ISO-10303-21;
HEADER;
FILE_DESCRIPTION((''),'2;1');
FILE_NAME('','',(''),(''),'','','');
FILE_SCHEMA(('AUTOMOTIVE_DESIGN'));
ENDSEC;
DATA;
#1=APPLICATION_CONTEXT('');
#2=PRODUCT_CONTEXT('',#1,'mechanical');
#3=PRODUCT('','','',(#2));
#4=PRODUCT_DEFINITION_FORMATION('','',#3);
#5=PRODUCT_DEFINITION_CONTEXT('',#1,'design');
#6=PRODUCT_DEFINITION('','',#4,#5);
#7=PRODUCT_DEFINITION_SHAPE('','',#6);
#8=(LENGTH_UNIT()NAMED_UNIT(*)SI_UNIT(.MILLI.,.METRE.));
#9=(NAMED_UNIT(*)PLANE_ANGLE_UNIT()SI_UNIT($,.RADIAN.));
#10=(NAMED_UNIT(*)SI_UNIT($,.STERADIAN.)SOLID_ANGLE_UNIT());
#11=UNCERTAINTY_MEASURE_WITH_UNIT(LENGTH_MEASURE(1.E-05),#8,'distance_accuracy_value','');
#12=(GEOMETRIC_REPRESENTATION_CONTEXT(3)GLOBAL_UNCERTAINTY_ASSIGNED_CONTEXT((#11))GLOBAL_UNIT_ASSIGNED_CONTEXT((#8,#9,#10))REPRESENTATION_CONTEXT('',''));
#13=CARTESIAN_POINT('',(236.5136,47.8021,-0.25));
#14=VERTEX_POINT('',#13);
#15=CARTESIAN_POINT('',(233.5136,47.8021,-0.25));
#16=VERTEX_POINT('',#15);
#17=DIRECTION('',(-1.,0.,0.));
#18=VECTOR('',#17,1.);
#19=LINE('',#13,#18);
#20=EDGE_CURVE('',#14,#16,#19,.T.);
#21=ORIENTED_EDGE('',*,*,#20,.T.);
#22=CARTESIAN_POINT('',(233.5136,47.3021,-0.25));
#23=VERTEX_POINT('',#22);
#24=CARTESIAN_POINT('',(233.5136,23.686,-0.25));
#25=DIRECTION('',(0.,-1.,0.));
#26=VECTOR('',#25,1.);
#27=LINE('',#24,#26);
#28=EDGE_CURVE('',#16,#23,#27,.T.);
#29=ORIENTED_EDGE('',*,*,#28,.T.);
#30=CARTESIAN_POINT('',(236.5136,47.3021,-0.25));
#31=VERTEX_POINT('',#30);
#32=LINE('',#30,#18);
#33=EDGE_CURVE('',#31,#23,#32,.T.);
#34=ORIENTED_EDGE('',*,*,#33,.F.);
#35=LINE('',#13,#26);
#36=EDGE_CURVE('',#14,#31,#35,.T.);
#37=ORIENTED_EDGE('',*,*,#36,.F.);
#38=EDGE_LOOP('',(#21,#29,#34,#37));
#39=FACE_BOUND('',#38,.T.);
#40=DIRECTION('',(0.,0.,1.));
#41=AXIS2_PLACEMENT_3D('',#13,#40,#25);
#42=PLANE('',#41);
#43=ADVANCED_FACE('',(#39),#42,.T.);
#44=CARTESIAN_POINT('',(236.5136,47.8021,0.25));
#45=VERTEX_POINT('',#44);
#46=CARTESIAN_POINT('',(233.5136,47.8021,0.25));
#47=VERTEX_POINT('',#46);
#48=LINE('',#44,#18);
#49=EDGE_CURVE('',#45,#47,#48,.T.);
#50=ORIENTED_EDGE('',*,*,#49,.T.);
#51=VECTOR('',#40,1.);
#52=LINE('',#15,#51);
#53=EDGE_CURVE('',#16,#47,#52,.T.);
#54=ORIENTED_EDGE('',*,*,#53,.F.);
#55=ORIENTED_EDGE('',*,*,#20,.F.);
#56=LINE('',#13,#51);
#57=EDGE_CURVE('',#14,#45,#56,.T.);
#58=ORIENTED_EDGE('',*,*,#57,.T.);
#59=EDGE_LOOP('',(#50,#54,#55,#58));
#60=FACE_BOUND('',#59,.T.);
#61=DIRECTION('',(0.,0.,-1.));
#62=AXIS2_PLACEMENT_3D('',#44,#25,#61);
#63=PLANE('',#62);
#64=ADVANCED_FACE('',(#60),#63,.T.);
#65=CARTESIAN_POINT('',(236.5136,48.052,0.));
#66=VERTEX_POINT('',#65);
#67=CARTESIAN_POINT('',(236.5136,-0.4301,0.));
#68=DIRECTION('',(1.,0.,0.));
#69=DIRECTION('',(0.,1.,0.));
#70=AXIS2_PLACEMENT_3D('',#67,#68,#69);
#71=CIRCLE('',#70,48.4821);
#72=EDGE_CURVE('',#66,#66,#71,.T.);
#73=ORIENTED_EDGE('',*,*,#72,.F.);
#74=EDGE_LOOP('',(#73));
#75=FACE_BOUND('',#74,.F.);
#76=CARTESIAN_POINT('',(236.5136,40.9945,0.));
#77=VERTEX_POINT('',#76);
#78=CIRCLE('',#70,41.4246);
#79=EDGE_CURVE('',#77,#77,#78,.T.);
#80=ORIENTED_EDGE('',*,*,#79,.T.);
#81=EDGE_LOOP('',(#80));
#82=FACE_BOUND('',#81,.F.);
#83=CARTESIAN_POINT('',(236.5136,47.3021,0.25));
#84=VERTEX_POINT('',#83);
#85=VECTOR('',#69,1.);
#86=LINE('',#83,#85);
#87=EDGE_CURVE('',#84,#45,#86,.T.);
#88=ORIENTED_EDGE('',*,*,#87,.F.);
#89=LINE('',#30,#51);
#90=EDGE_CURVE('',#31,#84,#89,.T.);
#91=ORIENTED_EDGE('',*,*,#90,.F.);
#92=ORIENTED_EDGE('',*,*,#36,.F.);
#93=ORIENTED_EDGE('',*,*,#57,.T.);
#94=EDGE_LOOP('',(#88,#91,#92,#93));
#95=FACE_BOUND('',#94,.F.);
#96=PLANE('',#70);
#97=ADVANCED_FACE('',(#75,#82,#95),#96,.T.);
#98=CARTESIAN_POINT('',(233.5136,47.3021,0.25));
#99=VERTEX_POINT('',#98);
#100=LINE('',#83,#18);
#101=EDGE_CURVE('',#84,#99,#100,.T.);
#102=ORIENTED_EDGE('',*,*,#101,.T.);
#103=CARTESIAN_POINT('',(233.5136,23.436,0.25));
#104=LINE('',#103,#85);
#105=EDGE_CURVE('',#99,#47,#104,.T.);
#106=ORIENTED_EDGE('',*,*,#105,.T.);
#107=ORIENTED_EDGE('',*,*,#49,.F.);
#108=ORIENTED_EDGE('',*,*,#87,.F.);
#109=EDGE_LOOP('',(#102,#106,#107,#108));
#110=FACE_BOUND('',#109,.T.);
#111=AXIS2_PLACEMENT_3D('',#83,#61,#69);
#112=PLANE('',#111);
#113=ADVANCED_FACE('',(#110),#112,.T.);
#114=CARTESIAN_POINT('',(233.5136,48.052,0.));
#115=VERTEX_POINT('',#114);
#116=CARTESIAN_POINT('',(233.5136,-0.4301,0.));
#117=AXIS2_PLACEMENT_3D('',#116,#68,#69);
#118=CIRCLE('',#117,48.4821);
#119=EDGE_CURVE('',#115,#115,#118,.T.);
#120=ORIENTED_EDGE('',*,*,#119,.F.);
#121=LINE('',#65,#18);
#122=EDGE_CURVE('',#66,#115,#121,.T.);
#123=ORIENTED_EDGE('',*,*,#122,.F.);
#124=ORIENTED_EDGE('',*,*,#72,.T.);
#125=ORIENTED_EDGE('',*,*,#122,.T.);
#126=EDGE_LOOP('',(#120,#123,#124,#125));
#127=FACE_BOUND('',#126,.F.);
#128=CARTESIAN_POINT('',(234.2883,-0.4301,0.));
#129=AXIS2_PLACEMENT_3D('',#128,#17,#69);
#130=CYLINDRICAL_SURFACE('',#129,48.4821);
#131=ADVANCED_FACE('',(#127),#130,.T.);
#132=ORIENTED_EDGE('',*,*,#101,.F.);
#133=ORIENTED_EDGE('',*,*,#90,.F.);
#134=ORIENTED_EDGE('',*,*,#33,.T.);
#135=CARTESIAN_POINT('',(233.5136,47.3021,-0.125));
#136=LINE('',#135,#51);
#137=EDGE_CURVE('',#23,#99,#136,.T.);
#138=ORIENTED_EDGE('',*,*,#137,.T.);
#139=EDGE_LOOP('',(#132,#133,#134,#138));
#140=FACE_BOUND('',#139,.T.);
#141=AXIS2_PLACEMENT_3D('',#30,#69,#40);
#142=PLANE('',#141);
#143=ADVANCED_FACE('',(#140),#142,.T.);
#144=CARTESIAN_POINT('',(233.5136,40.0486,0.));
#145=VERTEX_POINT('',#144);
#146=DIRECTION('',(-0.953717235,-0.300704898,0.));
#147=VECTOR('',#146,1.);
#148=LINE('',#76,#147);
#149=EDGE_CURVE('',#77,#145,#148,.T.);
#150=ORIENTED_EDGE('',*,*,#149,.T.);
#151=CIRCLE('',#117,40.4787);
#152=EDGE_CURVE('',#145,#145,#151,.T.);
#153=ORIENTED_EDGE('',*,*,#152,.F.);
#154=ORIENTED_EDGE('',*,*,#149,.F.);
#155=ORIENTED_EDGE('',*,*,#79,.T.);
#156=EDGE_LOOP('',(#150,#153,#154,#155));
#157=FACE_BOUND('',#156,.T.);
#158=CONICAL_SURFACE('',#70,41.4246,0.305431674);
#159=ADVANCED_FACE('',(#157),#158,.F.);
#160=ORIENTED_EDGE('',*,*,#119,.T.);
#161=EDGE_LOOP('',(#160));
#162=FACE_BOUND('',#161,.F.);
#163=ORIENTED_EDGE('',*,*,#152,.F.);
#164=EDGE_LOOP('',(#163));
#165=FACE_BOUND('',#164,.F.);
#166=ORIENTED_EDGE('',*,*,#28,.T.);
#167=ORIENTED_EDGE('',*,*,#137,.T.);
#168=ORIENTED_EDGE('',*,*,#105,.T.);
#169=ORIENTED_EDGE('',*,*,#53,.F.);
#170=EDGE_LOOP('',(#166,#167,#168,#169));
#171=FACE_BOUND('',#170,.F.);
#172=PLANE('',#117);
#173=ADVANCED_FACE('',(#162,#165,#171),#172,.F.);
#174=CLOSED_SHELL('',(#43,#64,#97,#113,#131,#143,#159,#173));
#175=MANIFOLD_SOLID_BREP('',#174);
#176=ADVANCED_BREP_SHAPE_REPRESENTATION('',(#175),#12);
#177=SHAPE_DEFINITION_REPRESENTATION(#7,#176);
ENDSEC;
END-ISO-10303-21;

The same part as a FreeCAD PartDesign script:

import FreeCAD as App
import Part
import Sketcher
Q = App.Units.Quantity

doc = App.newDocument("Part")
body = doc.addObject("PartDesign::Body", "Body")

sketch1 = doc.addObject("Sketcher::SketchObject", "Sketch")
body.addObject(sketch1)
sketch1.AttachmentSupport = (doc.XY_Plane, [""])
sketch1.MapMode = "FlatFace"
sketch1.addGeometry(Part.LineSegment(App.Vector(233.5, 48.1, 0), App.Vector(233.5, 40, 0)), False)
sketch1.addGeometry(Part.LineSegment(App.Vector(233.5, 40, 0), App.Vector(236.5, 41, 0)), False)
sketch1.addGeometry(Part.LineSegment(App.Vector(236.5, 41, 0), App.Vector(236.5, 48.1, 0)), False)
sketch1.addGeometry(Part.LineSegment(App.Vector(236.5, 48.1, 0), App.Vector(233.5, 48.1, 0)), False)
sketch1.addGeometry(Part.LineSegment(App.Vector(233.5, -0.4, 0), App.Vector(236.5, -0.4, 0)), True)
sketch1.addConstraint(Sketcher.Constraint("Coincident", 0, 2, 1, 1))
sketch1.addConstraint(Sketcher.Constraint("Coincident", 1, 2, 2, 1))
sketch1.addConstraint(Sketcher.Constraint("Coincident", 2, 2, 3, 1))
sketch1.addConstraint(Sketcher.Constraint("Coincident", 3, 2, 0, 1))
sketch1.addConstraint(Sketcher.Constraint("Vertical", 0))
sketch1.addConstraint(Sketcher.Constraint("Vertical", 2))
sketch1.addConstraint(Sketcher.Constraint("Horizontal", 3))
sketch1.addConstraint(Sketcher.Constraint("Horizontal", 4))
sketch1.addConstraint(Sketcher.Constraint("Vertical", 3, 2, 4, 1))
sketch1.addConstraint(Sketcher.Constraint("Vertical", 2, 2, 4, 2))
sketch1.addConstraint(Sketcher.Constraint("DistanceX", 3, 2, 3, 1, 3.0))
sketch1.addConstraint(Sketcher.Constraint("Angle", 1, Q("17.5 deg")))
sketch1.addConstraint(Sketcher.Constraint("DistanceY", 4, 1, -1, 1, 0.43))
sketch1.addConstraint(Sketcher.Constraint("DistanceY", 0, 2, 0, 1, 8.0034))
sketch1.addConstraint(Sketcher.Constraint("DistanceY", -1, 1, 2, 2, 48.052))
sketch1.addConstraint(Sketcher.Constraint("DistanceX", -1, 1, 0, 2, 233.5136))
revolution = doc.addObject("PartDesign::Revolution", "Revolution")
body.addObject(revolution)
revolution.Profile = sketch1
revolution.ReferenceAxis = (sketch1, ["Axis0"])
revolution.Angle = 360

sketch2 = doc.addObject("Sketcher::SketchObject", "Sketch001")
body.addObject(sketch2)
sketch2.AttachmentSupport = (doc.YZ_Plane, [""])
sketch2.MapMode = "FlatFace"
sketch2.AttachmentOffset = App.Placement(App.Vector(0, 0, 236.5136), App.Rotation())
sketch2.addGeometry(Part.LineSegment(App.Vector(47.8, -0.2, 0), App.Vector(47.8, 0.2, 0)), False)
sketch2.addGeometry(Part.LineSegment(App.Vector(47.8, 0.2, 0), App.Vector(47.3, 0.2, 0)), False)
sketch2.addGeometry(Part.LineSegment(App.Vector(47.3, 0.2, 0), App.Vector(47.3, -0.2, 0)), False)
sketch2.addGeometry(Part.LineSegment(App.Vector(47.3, -0.2, 0), App.Vector(47.8, -0.2, 0)), False)
sketch2.addConstraint(Sketcher.Constraint("Coincident", 0, 2, 1, 1))
sketch2.addConstraint(Sketcher.Constraint("Coincident", 1, 2, 2, 1))
sketch2.addConstraint(Sketcher.Constraint("Coincident", 2, 2, 3, 1))
sketch2.addConstraint(Sketcher.Constraint("Coincident", 3, 2, 0, 1))
sketch2.addConstraint(Sketcher.Constraint("Vertical", 0))
sketch2.addConstraint(Sketcher.Constraint("Horizontal", 1))
sketch2.addConstraint(Sketcher.Constraint("Vertical", 2))
sketch2.addConstraint(Sketcher.Constraint("Horizontal", 3))
sketch2.addConstraint(Sketcher.Constraint("Equal", 3, 0))
sketch2.addConstraint(Sketcher.Constraint("DistanceX", 1, 2, 1, 1, 0.5))
sketch2.addConstraint(Sketcher.Constraint("DistanceY", -1, 1, 0, 2, 0.25))
sketch2.addConstraint(Sketcher.Constraint("DistanceX", -1, 1, 0, 2, 47.802))
pocket1 = doc.addObject("PartDesign::Pocket", "Pocket")
body.addObject(pocket1)
pocket1.Profile = sketch2
pocket1.Length = 3.5

doc.recompute()
